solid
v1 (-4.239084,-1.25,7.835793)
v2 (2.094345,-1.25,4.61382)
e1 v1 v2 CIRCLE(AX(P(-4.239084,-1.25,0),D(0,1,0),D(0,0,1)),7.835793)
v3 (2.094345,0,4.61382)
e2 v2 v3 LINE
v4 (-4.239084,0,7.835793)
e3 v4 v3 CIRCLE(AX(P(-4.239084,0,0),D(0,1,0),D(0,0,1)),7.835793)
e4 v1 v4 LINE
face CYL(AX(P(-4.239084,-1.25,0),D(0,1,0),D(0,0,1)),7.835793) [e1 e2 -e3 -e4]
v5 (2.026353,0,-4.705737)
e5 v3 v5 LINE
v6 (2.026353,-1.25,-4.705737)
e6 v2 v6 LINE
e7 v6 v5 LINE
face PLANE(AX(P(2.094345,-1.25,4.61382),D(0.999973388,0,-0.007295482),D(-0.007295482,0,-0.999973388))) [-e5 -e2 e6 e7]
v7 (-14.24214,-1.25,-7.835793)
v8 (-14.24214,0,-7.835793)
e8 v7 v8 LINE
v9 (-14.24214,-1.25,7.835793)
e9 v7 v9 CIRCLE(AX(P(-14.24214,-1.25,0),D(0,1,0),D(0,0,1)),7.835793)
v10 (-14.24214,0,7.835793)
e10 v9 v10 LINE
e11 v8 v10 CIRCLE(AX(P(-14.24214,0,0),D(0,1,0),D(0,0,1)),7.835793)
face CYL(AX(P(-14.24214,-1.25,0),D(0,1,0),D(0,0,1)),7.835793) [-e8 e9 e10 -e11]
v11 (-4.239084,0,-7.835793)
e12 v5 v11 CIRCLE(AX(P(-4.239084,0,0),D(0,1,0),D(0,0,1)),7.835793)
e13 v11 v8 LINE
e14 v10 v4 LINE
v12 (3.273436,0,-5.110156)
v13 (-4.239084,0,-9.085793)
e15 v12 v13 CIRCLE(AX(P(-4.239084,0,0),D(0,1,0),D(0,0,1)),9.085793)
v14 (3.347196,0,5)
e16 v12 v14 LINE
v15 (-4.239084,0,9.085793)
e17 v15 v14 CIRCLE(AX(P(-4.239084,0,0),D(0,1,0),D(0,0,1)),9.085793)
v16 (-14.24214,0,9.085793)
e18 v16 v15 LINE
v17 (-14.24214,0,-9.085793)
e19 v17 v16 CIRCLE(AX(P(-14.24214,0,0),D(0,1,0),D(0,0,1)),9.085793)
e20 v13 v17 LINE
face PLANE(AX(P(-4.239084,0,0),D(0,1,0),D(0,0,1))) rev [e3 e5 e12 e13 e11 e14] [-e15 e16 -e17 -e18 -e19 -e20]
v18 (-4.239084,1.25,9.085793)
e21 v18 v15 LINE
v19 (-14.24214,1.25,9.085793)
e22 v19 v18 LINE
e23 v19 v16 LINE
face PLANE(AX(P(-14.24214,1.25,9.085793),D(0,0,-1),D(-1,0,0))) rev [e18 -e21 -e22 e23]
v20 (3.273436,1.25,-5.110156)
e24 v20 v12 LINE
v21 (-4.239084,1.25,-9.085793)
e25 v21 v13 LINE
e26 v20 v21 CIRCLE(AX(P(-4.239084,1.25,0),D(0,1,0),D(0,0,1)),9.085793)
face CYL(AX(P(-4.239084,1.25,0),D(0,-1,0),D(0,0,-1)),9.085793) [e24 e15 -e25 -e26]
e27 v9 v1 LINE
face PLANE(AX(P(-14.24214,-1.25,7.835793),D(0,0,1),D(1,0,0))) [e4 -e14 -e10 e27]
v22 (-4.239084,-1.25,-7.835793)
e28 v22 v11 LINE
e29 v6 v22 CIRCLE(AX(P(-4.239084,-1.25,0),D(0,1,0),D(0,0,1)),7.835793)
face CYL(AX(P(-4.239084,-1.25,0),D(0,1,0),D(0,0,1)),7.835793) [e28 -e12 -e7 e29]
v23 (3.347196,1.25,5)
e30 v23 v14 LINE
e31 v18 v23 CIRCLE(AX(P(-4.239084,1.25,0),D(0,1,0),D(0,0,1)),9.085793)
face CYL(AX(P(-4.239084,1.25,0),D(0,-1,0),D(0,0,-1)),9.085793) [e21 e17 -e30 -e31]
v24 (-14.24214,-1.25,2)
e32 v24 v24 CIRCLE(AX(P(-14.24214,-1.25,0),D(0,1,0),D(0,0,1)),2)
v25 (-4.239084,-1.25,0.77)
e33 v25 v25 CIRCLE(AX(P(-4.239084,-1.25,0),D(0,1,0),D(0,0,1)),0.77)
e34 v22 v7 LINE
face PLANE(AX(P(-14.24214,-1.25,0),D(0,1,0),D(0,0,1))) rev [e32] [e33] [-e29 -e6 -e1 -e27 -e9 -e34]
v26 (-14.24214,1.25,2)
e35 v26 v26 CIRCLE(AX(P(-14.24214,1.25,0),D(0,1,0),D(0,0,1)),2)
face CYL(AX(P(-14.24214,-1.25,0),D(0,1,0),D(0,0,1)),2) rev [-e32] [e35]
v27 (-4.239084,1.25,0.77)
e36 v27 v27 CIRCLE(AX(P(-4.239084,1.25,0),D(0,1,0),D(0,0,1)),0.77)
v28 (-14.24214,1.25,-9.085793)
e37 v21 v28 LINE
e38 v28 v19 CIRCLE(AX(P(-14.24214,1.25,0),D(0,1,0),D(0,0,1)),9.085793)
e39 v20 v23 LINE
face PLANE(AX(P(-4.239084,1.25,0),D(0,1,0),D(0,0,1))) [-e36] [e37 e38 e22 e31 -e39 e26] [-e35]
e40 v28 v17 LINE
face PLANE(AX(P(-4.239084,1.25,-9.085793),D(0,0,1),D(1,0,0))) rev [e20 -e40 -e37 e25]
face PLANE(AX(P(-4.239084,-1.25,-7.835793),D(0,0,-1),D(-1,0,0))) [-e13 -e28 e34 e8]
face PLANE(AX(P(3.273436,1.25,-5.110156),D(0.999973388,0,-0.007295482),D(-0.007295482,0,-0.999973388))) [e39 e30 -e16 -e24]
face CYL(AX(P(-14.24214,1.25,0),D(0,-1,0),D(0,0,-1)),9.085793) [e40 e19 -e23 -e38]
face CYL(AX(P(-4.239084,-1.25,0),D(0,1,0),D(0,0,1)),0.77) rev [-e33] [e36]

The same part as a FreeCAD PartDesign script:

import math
import FreeCAD as App
import Part
import Sketcher
from FreeCAD import Vector

doc = App.newDocument("Part")
body = doc.addObject("PartDesign::Body", "Body")

sketch1 = doc.addObject("Sketcher::SketchObject", "Sketch")
body.addObject(sketch1)
sketch1.AttachmentSupport = (doc.XZ_Plane, [""])
sketch1.MapMode = "FlatFace"
sketch1.addGeometry([
    Part.LineSegment(Vector(-14.2, 7.8, 0), Vector(-4.2, 7.8, 0)),
    Part.ArcOfCircle(Part.Circle(Vector(-4.2, 0, 0), Vector(0, 0, 1), 7.8), math.radians(36), math.radians(90)),
    Part.LineSegment(Vector(2.1, 4.6, 0), Vector(2, -4.7, 0)),
    Part.ArcOfCircle(Part.Circle(Vector(-4.2, 0, 0), Vector(0, 0, 1), 7.8), math.radians(-90), math.radians(-37)),
    Part.LineSegment(Vector(-4.2, -7.8, 0), Vector(-14.2, -7.8, 0)),
    Part.ArcOfCircle(Part.Circle(Vector(-14.2, 0, 0), Vector(0, 0, 1), 7.8), math.radians(90), math.radians(270)),
    Part.Circle(Vector(-14.2, 0, 0), Vector(0, 0, 1), 2),
    Part.Circle(Vector(-4.2, 0, 0), Vector(0, 0, 1), 0.8),
], False)
sketch1.addConstraint([
    Sketcher.Constraint("Tangent", 0, 2, 1, 2),
    Sketcher.Constraint("Coincident", 1, 1, 2, 1),
    Sketcher.Constraint("Coincident", 2, 2, 3, 2),
    Sketcher.Constraint("Tangent", 3, 1, 4, 1),
    Sketcher.Constraint("Tangent", 4, 2, 5, 2),
    Sketcher.Constraint("Tangent", 5, 1, 0, 1),
    Sketcher.Constraint("Horizontal", 0),
    Sketcher.Constraint("Horizontal", 4),
    Sketcher.Constraint("Coincident", 3, 3, 1, 3),
    Sketcher.Constraint("Coincident", 6, 3, 5, 3),
    Sketcher.Constraint("Coincident", 7, 3, 1, 3),
    Sketcher.Constraint("Equal", 1, 3),
    Sketcher.Constraint("PointOnObject", 1, 3, -1),
    Sketcher.Constraint("Diameter", 6, 4.0),
    Sketcher.Constraint("Diameter", 7, 1.54),
    Sketcher.Constraint("Radius", 1, 7.835793),
    Sketcher.Constraint("DistanceX", 0, 1, 0, 2, 10.003056),
    Sketcher.Constraint("DistanceX", 5, 3, -1, 1, 14.24214),
    Sketcher.Constraint("DistanceY", -1, 1, 1, 1, 4.61382),
    Sketcher.Constraint("DistanceY", 2, 2, 0, 2, 12.54153),
])
pad1 = doc.addObject("PartDesign::Pad", "Pad")
body.addObject(pad1)
pad1.Profile = sketch1
pad1.Length = 1.25

sketch2 = doc.addObject("Sketcher::SketchObject", "Sketch001")
body.addObject(sketch2)
sketch2.AttachmentSupport = (doc.XZ_Plane, [""])
sketch2.MapMode = "FlatFace"
sketch2.AttachmentOffset = App.Placement(Vector(0, 0, -1.25), App.Rotation())
sketch2.addGeometry([
    Part.LineSegment(Vector(3.3, 5, 0), Vector(3.3, -5.1, 0)),
    Part.ArcOfCircle(Part.Circle(Vector(-4.2, 0, 0), Vector(0, 0, 1), 9.1), math.radians(-90), math.radians(-34)),
    Part.LineSegment(Vector(-4.2, -9.1, 0), Vector(-14.2, -9.1, 0)),
    Part.ArcOfCircle(Part.Circle(Vector(-14.2, 0, 0), Vector(0, 0, 1), 9.1), math.radians(90), math.radians(270)),
    Part.LineSegment(Vector(-14.2, 9.1, 0), Vector(-4.2, 9.1, 0)),
    Part.ArcOfCircle(Part.Circle(Vector(-4.2, 0, 0), Vector(0, 0, 1), 9.1), math.radians(33), math.radians(90)),
    Part.Circle(Vector(-4.2, 0, 0), Vector(0, 0, 1), 0.8),
    Part.Circle(Vector(-14.2, 0, 0), Vector(0, 0, 1), 2),
], False)
sketch2.addConstraint([
    Sketcher.Constraint("Coincident", 0, 2, 1, 2),
    Sketcher.Constraint("Tangent", 1, 1, 2, 1),
    Sketcher.Constraint("Tangent", 2, 2, 3, 2),
    Sketcher.Constraint("Tangent", 3, 1, 4, 1),
    Sketcher.Constraint("Tangent", 4, 2, 5, 2),
    Sketcher.Constraint("Coincident", 5, 1, 0, 1),
    Sketcher.Constraint("Horizontal", 2),
    Sketcher.Constraint("Horizontal", 4),
    Sketcher.Constraint("Coincident", 5, 3, 1, 3),
    Sketcher.Constraint("Coincident", 6, 3, 1, 3),
    Sketcher.Constraint("Coincident", 7, 3, 3, 3),
    Sketcher.Constraint("Equal", 1, 3),
    Sketcher.Constraint("PointOnObject", 1, 3, -1),
    Sketcher.Constraint("Diameter", 7, 4.0),
    Sketcher.Constraint("Diameter", 6, 1.54),
    Sketcher.Constraint("DistanceY", -1, 1, 5, 1, 5.0),
    Sketcher.Constraint("Radius", 1, 9.085793),
    Sketcher.Constraint("DistanceX", 2, 2, 2, 1, 10.003056),
    Sketcher.Constraint("DistanceX", 3, 3, -1, 1, 14.24214),
    Sketcher.Constraint("DistanceX", 6, 3, 0, 2, 7.512519),
])
pad2 = doc.addObject("PartDesign::Pad", "Pad001")
body.addObject(pad2)
pad2.Profile = sketch2
pad2.Length = 1.25

doc.recompute()
